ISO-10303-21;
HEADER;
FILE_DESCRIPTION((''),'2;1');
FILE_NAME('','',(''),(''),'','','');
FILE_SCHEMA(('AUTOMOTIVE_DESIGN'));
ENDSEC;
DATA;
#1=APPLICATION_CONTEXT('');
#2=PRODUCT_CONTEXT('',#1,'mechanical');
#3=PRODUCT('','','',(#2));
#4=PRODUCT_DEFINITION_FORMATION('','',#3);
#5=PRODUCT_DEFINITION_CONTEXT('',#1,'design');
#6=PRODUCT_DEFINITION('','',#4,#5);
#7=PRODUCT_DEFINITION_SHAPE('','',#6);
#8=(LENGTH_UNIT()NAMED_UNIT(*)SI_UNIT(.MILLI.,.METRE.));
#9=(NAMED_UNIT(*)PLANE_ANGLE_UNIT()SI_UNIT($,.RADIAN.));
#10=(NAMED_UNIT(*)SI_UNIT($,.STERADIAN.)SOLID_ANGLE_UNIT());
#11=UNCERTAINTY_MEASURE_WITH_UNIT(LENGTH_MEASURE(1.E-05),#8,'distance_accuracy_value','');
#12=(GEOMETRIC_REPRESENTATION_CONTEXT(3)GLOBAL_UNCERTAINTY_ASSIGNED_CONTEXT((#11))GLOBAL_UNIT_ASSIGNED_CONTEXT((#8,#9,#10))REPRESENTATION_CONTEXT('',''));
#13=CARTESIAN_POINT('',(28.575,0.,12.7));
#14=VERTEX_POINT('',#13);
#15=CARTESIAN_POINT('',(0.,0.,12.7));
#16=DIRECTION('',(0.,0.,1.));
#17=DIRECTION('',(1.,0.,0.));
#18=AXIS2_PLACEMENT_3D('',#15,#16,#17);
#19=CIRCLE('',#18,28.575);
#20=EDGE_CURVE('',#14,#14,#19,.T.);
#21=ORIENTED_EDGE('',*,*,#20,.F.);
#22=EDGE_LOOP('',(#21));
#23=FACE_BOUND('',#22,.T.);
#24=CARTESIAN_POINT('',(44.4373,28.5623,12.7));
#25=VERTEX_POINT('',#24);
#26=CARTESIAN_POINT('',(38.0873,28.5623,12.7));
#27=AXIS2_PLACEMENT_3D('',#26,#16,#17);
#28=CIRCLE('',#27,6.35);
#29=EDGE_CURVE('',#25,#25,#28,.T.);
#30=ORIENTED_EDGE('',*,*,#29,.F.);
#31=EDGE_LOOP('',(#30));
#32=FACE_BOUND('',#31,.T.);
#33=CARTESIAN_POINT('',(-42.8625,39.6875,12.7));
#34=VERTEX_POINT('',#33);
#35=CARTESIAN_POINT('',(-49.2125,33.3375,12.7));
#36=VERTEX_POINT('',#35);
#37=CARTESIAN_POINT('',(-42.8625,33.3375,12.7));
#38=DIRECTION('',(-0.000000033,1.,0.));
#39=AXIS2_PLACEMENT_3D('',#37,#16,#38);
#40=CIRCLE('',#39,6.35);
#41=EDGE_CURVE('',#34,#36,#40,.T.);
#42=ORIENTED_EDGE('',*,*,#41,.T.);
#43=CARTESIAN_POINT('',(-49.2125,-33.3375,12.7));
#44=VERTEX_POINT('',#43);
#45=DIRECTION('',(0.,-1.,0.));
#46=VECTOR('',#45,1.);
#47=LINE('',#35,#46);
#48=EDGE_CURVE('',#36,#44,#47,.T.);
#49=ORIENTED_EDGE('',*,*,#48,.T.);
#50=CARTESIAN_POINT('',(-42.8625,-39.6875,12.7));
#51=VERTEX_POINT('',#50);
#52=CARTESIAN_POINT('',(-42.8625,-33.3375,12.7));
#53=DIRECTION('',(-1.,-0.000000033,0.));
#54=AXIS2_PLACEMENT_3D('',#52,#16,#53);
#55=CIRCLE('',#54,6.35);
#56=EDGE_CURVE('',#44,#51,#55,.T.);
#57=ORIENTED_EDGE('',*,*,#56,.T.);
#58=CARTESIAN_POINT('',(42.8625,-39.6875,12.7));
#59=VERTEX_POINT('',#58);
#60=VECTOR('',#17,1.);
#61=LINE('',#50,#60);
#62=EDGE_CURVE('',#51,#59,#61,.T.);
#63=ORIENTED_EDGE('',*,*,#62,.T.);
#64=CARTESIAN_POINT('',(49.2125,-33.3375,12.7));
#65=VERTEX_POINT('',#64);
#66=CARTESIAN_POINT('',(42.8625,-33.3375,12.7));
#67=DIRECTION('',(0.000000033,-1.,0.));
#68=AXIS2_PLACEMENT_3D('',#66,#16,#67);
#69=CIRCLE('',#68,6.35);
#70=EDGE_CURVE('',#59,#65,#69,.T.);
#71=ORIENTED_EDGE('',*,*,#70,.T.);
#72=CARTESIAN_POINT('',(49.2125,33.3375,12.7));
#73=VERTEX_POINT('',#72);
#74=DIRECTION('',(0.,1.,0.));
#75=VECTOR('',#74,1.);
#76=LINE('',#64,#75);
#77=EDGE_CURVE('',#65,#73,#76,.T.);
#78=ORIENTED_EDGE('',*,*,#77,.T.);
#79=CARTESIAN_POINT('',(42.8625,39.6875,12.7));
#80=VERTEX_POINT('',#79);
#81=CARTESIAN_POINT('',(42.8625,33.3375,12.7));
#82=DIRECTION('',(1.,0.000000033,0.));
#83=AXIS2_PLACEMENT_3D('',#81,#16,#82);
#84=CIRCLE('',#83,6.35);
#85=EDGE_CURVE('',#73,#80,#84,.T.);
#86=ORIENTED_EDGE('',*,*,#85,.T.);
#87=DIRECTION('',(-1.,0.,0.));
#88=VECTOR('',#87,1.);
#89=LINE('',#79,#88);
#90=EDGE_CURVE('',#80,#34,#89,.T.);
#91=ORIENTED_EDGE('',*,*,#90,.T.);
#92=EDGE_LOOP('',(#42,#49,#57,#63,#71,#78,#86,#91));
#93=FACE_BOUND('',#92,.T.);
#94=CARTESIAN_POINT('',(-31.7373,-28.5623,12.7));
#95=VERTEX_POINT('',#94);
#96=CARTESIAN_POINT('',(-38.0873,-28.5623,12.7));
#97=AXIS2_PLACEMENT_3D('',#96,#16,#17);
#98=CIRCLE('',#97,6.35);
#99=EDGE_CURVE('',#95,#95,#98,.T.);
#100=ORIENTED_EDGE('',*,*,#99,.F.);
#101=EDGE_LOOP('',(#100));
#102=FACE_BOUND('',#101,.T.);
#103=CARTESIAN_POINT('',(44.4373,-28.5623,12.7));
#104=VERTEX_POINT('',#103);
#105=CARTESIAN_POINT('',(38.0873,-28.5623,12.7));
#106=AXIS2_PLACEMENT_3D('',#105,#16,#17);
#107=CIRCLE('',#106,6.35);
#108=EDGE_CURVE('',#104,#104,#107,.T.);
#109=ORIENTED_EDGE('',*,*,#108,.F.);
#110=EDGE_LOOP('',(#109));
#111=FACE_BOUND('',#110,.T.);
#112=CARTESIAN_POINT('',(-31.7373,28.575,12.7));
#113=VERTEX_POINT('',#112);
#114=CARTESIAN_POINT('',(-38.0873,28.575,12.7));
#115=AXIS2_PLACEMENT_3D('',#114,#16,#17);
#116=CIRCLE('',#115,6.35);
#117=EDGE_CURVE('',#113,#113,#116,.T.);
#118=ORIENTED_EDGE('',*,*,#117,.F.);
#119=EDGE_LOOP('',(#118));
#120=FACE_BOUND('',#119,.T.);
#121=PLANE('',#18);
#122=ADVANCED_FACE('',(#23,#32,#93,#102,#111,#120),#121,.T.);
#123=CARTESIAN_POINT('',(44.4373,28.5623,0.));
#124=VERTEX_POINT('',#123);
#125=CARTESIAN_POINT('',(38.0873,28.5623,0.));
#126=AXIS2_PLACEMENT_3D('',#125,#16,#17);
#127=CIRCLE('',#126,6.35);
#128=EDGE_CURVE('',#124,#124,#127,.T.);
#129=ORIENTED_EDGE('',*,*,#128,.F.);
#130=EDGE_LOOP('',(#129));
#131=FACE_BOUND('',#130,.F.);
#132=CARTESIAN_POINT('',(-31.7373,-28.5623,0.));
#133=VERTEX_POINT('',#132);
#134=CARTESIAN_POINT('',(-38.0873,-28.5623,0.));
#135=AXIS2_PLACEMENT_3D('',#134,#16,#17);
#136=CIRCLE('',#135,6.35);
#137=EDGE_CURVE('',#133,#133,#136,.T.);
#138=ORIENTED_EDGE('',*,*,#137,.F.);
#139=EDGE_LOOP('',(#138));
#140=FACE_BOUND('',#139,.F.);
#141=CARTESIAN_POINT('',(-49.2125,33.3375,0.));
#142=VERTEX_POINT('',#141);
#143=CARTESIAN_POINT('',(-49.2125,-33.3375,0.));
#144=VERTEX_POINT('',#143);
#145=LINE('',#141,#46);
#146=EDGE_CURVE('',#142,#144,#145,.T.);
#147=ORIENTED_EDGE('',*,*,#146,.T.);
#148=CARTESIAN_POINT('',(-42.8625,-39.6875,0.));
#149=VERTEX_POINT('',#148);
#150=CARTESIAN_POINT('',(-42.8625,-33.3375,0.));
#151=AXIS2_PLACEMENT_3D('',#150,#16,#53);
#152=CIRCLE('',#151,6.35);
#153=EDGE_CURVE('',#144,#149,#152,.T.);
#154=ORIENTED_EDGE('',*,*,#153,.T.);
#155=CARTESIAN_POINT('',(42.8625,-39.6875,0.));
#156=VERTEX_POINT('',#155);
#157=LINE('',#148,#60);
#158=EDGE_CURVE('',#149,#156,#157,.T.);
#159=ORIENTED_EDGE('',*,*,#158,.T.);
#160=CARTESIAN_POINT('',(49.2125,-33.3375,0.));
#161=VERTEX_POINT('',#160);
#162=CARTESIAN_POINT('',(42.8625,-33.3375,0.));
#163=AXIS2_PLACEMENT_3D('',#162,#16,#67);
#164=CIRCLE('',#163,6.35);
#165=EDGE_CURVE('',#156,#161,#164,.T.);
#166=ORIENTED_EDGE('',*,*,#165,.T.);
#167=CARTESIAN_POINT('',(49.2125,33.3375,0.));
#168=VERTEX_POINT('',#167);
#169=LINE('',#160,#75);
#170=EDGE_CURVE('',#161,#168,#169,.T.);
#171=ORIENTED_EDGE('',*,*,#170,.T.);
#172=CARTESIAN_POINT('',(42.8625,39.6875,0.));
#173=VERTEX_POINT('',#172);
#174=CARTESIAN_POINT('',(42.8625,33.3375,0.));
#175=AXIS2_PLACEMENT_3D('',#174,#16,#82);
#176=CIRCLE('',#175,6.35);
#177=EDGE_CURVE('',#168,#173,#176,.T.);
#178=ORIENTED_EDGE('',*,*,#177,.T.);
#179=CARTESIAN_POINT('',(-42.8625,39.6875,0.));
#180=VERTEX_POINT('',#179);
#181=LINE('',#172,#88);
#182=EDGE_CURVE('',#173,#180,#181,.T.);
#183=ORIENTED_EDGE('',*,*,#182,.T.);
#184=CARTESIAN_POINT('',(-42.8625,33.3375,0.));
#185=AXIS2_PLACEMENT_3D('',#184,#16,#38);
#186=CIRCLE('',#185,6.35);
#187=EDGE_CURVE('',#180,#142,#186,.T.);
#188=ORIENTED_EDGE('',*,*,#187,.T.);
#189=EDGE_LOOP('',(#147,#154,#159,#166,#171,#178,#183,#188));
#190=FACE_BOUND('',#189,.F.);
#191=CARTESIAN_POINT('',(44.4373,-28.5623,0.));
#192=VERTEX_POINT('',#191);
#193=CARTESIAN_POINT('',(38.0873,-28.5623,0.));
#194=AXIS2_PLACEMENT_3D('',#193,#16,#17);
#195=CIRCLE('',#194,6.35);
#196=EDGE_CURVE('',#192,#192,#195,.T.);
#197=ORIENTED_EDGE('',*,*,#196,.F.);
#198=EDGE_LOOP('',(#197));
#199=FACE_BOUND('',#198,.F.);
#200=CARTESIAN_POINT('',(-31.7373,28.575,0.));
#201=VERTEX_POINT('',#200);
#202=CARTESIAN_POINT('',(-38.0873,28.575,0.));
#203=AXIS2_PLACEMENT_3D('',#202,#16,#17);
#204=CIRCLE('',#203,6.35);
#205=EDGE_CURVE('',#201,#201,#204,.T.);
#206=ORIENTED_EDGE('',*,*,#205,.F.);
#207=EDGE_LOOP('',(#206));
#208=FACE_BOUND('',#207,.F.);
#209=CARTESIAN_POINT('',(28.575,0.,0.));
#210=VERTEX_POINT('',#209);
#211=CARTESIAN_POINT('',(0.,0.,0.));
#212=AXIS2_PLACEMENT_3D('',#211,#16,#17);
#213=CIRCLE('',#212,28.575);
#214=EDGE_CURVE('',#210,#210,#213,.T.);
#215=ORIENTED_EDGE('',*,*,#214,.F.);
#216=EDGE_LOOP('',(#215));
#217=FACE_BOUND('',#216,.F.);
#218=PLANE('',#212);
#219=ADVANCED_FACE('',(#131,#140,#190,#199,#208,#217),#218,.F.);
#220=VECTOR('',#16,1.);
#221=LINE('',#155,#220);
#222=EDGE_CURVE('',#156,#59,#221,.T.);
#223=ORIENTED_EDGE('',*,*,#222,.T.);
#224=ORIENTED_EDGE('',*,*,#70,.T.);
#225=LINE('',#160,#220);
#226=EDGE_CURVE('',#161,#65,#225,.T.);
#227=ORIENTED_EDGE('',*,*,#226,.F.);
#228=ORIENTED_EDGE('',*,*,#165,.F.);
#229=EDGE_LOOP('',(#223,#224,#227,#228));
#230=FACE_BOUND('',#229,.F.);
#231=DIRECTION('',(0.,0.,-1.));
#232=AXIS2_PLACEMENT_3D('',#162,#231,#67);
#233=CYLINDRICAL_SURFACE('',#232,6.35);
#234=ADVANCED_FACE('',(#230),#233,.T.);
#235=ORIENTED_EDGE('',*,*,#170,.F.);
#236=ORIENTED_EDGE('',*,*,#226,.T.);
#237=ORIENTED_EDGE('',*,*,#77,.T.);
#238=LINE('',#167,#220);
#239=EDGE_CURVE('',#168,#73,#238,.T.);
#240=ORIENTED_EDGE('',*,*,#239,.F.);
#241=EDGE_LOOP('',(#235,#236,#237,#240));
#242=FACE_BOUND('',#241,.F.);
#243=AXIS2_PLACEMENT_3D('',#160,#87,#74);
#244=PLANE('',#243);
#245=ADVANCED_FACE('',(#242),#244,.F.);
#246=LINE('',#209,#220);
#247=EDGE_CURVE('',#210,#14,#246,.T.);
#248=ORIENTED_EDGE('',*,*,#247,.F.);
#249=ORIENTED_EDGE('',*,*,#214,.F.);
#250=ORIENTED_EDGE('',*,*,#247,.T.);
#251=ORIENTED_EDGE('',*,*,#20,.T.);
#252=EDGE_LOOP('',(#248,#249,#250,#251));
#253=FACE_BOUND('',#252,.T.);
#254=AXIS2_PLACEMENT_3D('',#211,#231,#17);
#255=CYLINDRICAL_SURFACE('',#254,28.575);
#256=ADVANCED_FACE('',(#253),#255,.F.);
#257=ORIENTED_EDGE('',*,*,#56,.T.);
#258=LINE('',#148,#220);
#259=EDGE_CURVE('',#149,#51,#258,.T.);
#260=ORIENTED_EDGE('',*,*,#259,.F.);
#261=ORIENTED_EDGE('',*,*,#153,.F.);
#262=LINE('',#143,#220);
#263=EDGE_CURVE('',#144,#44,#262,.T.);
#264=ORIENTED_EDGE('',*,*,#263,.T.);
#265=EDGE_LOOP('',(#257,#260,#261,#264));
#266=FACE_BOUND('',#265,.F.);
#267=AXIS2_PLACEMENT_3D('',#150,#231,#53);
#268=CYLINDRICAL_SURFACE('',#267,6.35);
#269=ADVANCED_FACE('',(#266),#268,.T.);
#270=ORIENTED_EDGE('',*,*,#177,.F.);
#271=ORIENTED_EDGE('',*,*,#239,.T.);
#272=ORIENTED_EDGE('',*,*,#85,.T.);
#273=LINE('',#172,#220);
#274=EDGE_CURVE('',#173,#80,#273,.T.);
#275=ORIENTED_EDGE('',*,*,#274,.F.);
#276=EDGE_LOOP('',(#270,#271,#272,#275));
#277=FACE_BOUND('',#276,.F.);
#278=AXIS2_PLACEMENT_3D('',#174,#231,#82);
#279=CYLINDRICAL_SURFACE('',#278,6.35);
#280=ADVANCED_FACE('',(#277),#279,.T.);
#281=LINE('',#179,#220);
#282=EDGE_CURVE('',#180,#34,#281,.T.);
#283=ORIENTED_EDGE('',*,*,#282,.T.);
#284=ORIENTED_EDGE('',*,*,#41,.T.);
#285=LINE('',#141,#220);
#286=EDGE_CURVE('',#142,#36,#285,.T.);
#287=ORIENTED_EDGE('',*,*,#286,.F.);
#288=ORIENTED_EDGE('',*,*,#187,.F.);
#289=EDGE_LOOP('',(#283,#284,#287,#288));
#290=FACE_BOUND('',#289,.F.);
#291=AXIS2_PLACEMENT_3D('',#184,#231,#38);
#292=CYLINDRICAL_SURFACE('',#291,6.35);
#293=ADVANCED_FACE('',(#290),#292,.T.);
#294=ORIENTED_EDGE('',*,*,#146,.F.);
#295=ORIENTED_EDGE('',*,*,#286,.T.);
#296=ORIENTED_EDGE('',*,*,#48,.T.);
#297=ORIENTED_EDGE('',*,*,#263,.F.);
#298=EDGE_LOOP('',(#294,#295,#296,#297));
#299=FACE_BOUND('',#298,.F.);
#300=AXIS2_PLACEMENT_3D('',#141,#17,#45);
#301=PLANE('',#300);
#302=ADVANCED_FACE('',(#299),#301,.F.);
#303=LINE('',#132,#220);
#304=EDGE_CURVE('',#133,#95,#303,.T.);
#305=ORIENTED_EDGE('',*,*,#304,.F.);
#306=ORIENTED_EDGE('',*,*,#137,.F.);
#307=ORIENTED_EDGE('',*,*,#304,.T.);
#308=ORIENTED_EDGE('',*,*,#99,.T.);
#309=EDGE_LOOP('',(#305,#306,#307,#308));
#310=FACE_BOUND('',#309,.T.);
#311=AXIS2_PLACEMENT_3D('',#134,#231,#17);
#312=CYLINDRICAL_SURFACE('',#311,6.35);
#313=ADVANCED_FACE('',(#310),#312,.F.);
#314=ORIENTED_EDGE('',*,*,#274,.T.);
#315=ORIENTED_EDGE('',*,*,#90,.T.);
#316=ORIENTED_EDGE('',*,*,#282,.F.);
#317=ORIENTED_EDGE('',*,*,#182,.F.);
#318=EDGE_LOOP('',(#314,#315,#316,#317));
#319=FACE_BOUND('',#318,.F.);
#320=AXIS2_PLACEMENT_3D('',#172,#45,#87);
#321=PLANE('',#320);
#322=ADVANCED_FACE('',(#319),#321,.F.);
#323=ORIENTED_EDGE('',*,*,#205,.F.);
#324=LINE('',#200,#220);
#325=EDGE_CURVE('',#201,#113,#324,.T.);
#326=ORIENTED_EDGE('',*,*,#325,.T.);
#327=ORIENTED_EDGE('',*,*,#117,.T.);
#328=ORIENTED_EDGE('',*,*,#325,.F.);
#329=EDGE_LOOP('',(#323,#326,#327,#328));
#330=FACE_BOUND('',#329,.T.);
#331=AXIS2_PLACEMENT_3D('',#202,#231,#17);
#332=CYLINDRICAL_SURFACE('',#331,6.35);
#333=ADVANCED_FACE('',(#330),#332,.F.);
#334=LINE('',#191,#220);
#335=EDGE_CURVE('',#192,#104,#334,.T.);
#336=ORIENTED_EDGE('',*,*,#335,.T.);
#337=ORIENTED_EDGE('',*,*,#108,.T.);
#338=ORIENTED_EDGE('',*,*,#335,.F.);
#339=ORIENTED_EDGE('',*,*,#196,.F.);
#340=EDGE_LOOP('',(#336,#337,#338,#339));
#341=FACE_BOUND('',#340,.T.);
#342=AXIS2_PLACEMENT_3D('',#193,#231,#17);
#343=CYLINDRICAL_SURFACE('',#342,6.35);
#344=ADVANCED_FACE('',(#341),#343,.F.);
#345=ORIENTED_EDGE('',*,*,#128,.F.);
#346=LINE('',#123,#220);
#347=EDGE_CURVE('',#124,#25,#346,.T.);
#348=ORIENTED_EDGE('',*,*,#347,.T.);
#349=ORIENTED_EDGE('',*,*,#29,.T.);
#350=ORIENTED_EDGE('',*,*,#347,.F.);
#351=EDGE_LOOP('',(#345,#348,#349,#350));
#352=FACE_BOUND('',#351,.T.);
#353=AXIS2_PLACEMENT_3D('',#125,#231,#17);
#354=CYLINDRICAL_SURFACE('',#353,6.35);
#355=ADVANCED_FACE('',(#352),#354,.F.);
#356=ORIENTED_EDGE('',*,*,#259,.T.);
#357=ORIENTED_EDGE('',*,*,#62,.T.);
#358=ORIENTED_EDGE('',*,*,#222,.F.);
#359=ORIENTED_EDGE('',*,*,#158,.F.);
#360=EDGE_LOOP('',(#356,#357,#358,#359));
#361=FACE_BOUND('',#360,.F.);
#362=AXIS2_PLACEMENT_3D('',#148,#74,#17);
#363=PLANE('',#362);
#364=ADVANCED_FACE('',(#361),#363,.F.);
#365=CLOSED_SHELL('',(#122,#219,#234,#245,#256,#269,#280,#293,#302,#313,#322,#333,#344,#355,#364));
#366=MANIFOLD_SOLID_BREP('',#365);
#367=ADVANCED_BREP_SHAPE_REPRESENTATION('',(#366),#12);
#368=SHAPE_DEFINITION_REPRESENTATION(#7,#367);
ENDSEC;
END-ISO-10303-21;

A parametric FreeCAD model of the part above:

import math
import FreeCAD as App
import Part
import Sketcher
Q = App.Units.Quantity

doc = App.newDocument("Part")
body = doc.addObject("PartDesign::Body", "Body")

# Sketch on XY plane
sketch1 = body.newObject("Sketcher::SketchObject", "Sketch")
sketch1.AttachmentSupport = (doc.getObject("XY_Plane"), [""])
sketch1.MapMode = "FlatFace"
sketch1.addGeometry(Part.ArcOfCircle(Part.Circle(App.Vector(42.8625, 33.3375, 0), App.Vector(0, 0, 1), 6.35), math.radians(0.000002), math.radians(89.999998)), False)
sketch1.addGeometry(Part.LineSegment(App.Vector(42.8625, 39.6875, 0), App.Vector(-42.8625, 39.6875, 0)), False)
sketch1.addGeometry(Part.ArcOfCircle(Part.Circle(App.Vector(-42.8625, 33.3375, 0), App.Vector(0, 0, 1), 6.35), math.radians(90.000002), math.radians(179.999998)), False)
sketch1.addGeometry(Part.LineSegment(App.Vector(-49.2125, 33.3375, 0), App.Vector(-49.2125, -33.3375, 0)), False)
sketch1.addGeometry(Part.ArcOfCircle(Part.Circle(App.Vector(-42.8625, -33.3375, 0), App.Vector(0, 0, 1), 6.35), math.radians(-179.999998), math.radians(-90.000002)), False)
sketch1.addGeometry(Part.LineSegment(App.Vector(-42.8625, -39.6875, 0), App.Vector(42.8625, -39.6875, 0)), False)
sketch1.addGeometry(Part.ArcOfCircle(Part.Circle(App.Vector(42.8625, -33.3375, 0), App.Vector(0, 0, 1), 6.35), math.radians(-89.999998), math.radians(-0.000002)), False)
sketch1.addGeometry(Part.LineSegment(App.Vector(49.2125, -33.3375, 0), App.Vector(49.2125, 33.3375, 0)), False)
sketch1.addGeometry(Part.Circle(App.Vector(-38.0873, -28.5623, 0), App.Vector(0, 0, 1), 6.35), False)
sketch1.addGeometry(Part.Circle(App.Vector(0, 0, 0), App.Vector(0, 0, 1), 28.575), False)
sketch1.addGeometry(Part.Circle(App.Vector(38.0873, -28.5623, 0), App.Vector(0, 0, 1), 6.35), False)
sketch1.addGeometry(Part.Circle(App.Vector(-38.0873, 28.575, 0), App.Vector(0, 0, 1), 6.35), False)
sketch1.addGeometry(Part.Circle(App.Vector(38.0873, 28.5623, 0), App.Vector(0, 0, 1), 6.35), False)
sketch1.addConstraint(Sketcher.Constraint("Tangent", 0, 2, 1, 1))
sketch1.addConstraint(Sketcher.Constraint("Tangent", 1, 2, 2, 1))
sketch1.addConstraint(Sketcher.Constraint("Tangent", 2, 2, 3, 1))
sketch1.addConstraint(Sketcher.Constraint("Tangent", 3, 2, 4, 1))
sketch1.addConstraint(Sketcher.Constraint("Tangent", 4, 2, 5, 1))
sketch1.addConstraint(Sketcher.Constraint("Tangent", 5, 2, 6, 1))
sketch1.addConstraint(Sketcher.Constraint("Tangent", 6, 2, 7, 1))
sketch1.addConstraint(Sketcher.Constraint("Tangent", 7, 2, 0, 1))
sketch1.addConstraint(Sketcher.Constraint("Horizontal", 1))
sketch1.addConstraint(Sketcher.Constraint("Vertical", 3))
sketch1.addConstraint(Sketcher.Constraint("Horizontal", 5))
sketch1.addConstraint(Sketcher.Constraint("Vertical", 7))
sketch1.addConstraint(Sketcher.Constraint("Coincident", 9, 3, -1, 1))
sketch1.addConstraint(Sketcher.Constraint("Equal", 0, 2))
sketch1.addConstraint(Sketcher.Constraint("Equal", 2, 4))
sketch1.addConstraint(Sketcher.Constraint("Equal", 4, 6))
sketch1.addConstraint(Sketcher.Constraint("Equal", 6, 8))
sketch1.addConstraint(Sketcher.Constraint("Equal", 8, 10))
sketch1.addConstraint(Sketcher.Constraint("Equal", 10, 11))
sketch1.addConstraint(Sketcher.Constraint("Equal", 11, 12))
sketch1.addConstraint(Sketcher.Constraint("Symmetric", 0, 3, 4, 3, -1, 1))
sketch1.addConstraint(Sketcher.Constraint("Symmetric", 8, 3, 12, 3, -1, 1))
sketch1.addConstraint(Sketcher.Constraint("Symmetric", 8, 3, 10, 3, -2))
sketch1.addConstraint(Sketcher.Constraint("Vertical", 8, 3, 11, 3))
sketch1.addConstraint(Sketcher.Constraint("Diameter", 8, Q("0.5 in")))
sketch1.addConstraint(Sketcher.Constraint("Diameter", 9, Q("2.25 in")))
sketch1.addConstraint(Sketcher.Constraint("DistanceX", 1, 2, 1, 1, Q("3.375 in")))
sketch1.addConstraint(Sketcher.Constraint("DistanceY", 3, 2, 3, 1, Q("2.625 in")))
sketch1.addConstraint(Sketcher.Constraint("DistanceY", -1, 1, 11, 3, Q("1.125 in")))
sketch1.addConstraint(Sketcher.Constraint("DistanceX", 4, 3, 8, 3, Q("0.188 in")))
sketch1.addConstraint(Sketcher.Constraint("DistanceY", 4, 3, 8, 3, Q("0.188 in")))
pad1 = body.newObject("PartDesign::Pad", "Pad")
pad1.Profile = sketch1
pad1.Length = Q("0.5 in")

doc.recompute()
